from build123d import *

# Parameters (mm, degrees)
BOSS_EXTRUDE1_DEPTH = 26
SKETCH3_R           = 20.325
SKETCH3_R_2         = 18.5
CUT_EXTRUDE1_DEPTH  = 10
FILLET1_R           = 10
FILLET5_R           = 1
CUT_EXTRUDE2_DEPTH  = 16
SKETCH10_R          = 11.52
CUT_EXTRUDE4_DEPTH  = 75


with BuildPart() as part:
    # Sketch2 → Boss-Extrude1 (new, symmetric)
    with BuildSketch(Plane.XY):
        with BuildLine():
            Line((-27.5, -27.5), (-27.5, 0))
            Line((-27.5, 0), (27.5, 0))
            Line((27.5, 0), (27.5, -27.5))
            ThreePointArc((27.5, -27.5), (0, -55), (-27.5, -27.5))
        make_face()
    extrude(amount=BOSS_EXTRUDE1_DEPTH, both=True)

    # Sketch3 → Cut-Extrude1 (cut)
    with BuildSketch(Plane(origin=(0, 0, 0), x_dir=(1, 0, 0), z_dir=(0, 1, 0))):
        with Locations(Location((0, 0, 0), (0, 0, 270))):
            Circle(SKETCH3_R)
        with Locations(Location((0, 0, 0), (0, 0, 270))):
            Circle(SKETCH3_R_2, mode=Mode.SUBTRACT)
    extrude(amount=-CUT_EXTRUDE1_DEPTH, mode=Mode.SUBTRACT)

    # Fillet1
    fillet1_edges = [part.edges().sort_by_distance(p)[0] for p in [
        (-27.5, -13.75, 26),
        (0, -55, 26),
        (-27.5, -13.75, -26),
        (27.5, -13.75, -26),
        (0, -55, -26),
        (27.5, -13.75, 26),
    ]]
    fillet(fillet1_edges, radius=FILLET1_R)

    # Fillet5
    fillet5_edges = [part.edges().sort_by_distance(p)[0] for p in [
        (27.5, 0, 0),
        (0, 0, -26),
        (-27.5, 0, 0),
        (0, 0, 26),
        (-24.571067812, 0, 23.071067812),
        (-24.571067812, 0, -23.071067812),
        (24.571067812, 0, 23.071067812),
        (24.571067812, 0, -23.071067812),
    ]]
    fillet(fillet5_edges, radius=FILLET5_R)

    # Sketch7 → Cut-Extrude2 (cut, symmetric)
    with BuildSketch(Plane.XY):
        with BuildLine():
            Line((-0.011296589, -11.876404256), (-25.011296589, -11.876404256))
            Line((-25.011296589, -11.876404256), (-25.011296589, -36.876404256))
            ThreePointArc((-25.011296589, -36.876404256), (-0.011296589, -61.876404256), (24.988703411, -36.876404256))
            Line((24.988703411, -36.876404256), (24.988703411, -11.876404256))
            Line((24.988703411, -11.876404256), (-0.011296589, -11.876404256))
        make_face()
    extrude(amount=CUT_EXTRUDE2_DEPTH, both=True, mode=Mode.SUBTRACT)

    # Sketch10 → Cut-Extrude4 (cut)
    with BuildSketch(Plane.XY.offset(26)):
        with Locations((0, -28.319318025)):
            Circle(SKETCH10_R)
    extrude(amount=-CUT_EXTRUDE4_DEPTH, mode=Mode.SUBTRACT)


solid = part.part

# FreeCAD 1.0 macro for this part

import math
import FreeCAD as App
import Part
import Sketcher

V = App.Vector


def edges_at(feature, points):
    """Names of the edges that pass closest to the given points."""
    edges = feature.Shape.Edges
    near = lambda p: min(range(len(edges)), key=lambda i: edges[i].distToShape(Part.Vertex(*p))[0])
    return sorted({f"Edge{near(p) + 1}" for p in points})

doc = App.newDocument("Part")
body = doc.addObject("PartDesign::Body", "Body")

# Sketch on XY plane
sketch1 = doc.addObject("Sketcher::SketchObject", "Sketch")
body.addObject(sketch1)
sketch1.AttachmentSupport = (doc.XY_Plane, [""])
sketch1.MapMode = "FlatFace"
sketch1.addGeometry([
    Part.LineSegment(V(-28, 0, 0), V(-28, -28, 0)),
    Part.ArcOfCircle(Part.Circle(V(0, -28, 0), V(0, 0, 1), 28), math.radians(180), math.radians(360)),
    Part.LineSegment(V(28, -28, 0), V(28, 0, 0)),
    Part.LineSegment(V(28, 0, 0), V(-28, 0, 0)),
], False)
sketch1.addConstraint([
    Sketcher.Constraint("Tangent", 0, 2, 1, 1),
    Sketcher.Constraint("Tangent", 1, 2, 2, 1),
    Sketcher.Constraint("Coincident", 2, 2, 3, 1),
    Sketcher.Constraint("Coincident", 3, 2, 0, 1),
    Sketcher.Constraint("Vertical", 0),
    Sketcher.Constraint("Vertical", 2),
    Sketcher.Constraint("Horizontal", 3),
    Sketcher.Constraint("Symmetric", 2, 2, 3, 2, -1, 1),
    Sketcher.Constraint("Radius", 1, 27.5),
    Sketcher.Constraint("DistanceY", 0, 2, 0, 1, 27.5),
])
pad1 = doc.addObject("PartDesign::Pad", "Pad")
body.addObject(pad1)
pad1.Profile = sketch1
pad1.Length = 52
pad1.Midplane = True

# Sketch on XZ plane
sketch2 = doc.addObject("Sketcher::SketchObject", "Sketch001")
body.addObject(sketch2)
sketch2.AttachmentSupport = (doc.XZ_Plane, [""])
sketch2.MapMode = "FlatFace"
sketch2.addGeometry([
    Part.Circle(V(0, 0, 0), V(0, 0, 1), 20),
    Part.Circle(V(0, 0, 0), V(0, 0, 1), 18),
], False)
sketch2.addConstraint([
    Sketcher.Constraint("Coincident", 0, 3, -1, 1),
    Sketcher.Constraint("Coincident", 1, 3, -1, 1),
    Sketcher.Constraint("Diameter", 1, 37.0),
    Sketcher.Constraint("Diameter", 0, 40.65),
])
pocket1 = doc.addObject("PartDesign::Pocket", "Pocket")
body.addObject(pocket1)
pocket1.Profile = sketch2
pocket1.Length = 10
pocket1.Reversed = True
doc.recompute()

fillet = doc.addObject("PartDesign::Fillet", "Fillet")
body.addObject(fillet)
fillet.Base = (pocket1, edges_at(pocket1, [
    (-27.5, -13.75, 26),
    (0, -55, 26),
    (-27.5, -13.75, -26),
    (27.5, -13.75, -26),
    (0, -55, -26),
    (27.5, -13.75, 26),
]))
fillet.Radius = 10
doc.recompute()

fillet2 = doc.addObject("PartDesign::Fillet", "Fillet001")
body.addObject(fillet2)
fillet2.Base = (fillet, edges_at(fillet, [
    (27.5, 0, 0),
    (0, 0, -26),
    (-27.5, 0, 0),
    (0, 0, 26),
    (-24.571, 0, 23.071),
    (-24.571, 0, -23.071),
    (24.571, 0, 23.071),
    (24.571, 0, -23.071),
]))
fillet2.Radius = 1

# Sketch on XY plane
sketch3 = doc.addObject("Sketcher::SketchObject", "Sketch002")
body.addObject(sketch3)
sketch3.AttachmentSupport = (doc.XY_Plane, [""])
sketch3.MapMode = "FlatFace"
sketch3.addGeometry([
    Part.LineSegment(V(-25, -12, 0), V(-25, -37, 0)),
    Part.ArcOfCircle(Part.Circle(V(0, -37, 0), V(0, 0, 1), 25), math.radians(180), math.radians(360)),
    Part.LineSegment(V(25, -37, 0), V(25, -12, 0)),
    Part.LineSegment(V(25, -12, 0), V(-25, -12, 0)),
], False)
sketch3.addConstraint([
    Sketcher.Constraint("Tangent", 0, 2, 1, 1),
    Sketcher.Constraint("Tangent", 1, 2, 2, 1),
    Sketcher.Constraint("Coincident", 2, 2, 3, 1),
    Sketcher.Constraint("Coincident", 3, 2, 0, 1),
    Sketcher.Constraint("Vertical", 0),
    Sketcher.Constraint("Vertical", 2),
    Sketcher.Constraint("Horizontal", 3),
    Sketcher.Constraint("Radius", 1, 25.0),
    Sketcher.Constraint("DistanceY", 0, 2, 0, 1, 25.0),
    Sketcher.Constraint("DistanceX", 1, 3, -1, 1, 0.011297),
    Sketcher.Constraint("DistanceY", 1, 3, -1, 1, 36.876404),
])
pocket2 = doc.addObject("PartDesign::Pocket", "Pocket001")
body.addObject(pocket2)
pocket2.Profile = sketch3
pocket2.Length = 32
pocket2.Midplane = True

# Sketch on XY plane
sketch4 = doc.addObject("Sketcher::SketchObject", "Sketch003")
body.addObject(sketch4)
sketch4.AttachmentSupport = (doc.XY_Plane, [""])
sketch4.MapMode = "FlatFace"
sketch4.AttachmentOffset = App.Placement(V(0, 0, 26), App.Rotation())
sketch4.addGeometry(Part.Circle(V(0, -28, 0), V(0, 0, 1), 12), False)
sketch4.addConstraint([
    Sketcher.Constraint("PointOnObject", 0, 3, -2),
    Sketcher.Constraint("Diameter", 0, 23.04),
    Sketcher.Constraint("DistanceY", 0, 3, -1, 1, 28.319318),
])
pocket3 = doc.addObject("PartDesign::Pocket", "Pocket002")
body.addObject(pocket3)
pocket3.Profile = sketch4
pocket3.Length = 75

doc.recompute()
